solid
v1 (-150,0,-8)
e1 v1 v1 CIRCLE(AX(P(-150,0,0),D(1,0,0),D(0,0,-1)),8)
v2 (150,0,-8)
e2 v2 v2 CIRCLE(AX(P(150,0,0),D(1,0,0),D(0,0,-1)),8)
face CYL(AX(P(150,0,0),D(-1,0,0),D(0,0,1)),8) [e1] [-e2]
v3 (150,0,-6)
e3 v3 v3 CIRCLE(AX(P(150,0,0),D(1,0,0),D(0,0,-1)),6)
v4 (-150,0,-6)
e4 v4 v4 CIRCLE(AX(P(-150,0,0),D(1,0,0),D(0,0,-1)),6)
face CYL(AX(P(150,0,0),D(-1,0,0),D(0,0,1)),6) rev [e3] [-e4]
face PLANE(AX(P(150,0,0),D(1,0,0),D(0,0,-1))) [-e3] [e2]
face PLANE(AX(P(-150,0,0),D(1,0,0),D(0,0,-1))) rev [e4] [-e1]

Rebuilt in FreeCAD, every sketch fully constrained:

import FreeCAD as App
import Part
import Sketcher
from FreeCAD import Vector
Q = App.Units.Quantity

doc = App.newDocument("Part")
body = doc.addObject("PartDesign::Body", "Body")

sketch1 = body.newObject("Sketcher::SketchObject", "Sketch")
sketch1.AttachmentSupport = (doc.getObject("YZ_Plane"), [""])
sketch1.MapMode = "FlatFace"
sketch1.addGeometry(Part.Circle(Vector(0, 0, 0), Vector(0, 0, 1), 8), False)
sketch1.addGeometry(Part.Circle(Vector(0, 0, 0), Vector(0, 0, 1), 6), False)
sketch1.addConstraint(Sketcher.Constraint("Coincident", 0, 3, -1, 1))
sketch1.addConstraint(Sketcher.Constraint("Coincident", 1, 3, -1, 1))
sketch1.addConstraint(Sketcher.Constraint("Diameter", 0, Q("16 mm")))
sketch1.addConstraint(Sketcher.Constraint("Diameter", 1, Q("12 mm")))
pad1 = body.newObject("PartDesign::Pad", "Pad")
pad1.Profile = sketch1
pad1.Length = 300
pad1.Midplane = True

doc.recompute()
